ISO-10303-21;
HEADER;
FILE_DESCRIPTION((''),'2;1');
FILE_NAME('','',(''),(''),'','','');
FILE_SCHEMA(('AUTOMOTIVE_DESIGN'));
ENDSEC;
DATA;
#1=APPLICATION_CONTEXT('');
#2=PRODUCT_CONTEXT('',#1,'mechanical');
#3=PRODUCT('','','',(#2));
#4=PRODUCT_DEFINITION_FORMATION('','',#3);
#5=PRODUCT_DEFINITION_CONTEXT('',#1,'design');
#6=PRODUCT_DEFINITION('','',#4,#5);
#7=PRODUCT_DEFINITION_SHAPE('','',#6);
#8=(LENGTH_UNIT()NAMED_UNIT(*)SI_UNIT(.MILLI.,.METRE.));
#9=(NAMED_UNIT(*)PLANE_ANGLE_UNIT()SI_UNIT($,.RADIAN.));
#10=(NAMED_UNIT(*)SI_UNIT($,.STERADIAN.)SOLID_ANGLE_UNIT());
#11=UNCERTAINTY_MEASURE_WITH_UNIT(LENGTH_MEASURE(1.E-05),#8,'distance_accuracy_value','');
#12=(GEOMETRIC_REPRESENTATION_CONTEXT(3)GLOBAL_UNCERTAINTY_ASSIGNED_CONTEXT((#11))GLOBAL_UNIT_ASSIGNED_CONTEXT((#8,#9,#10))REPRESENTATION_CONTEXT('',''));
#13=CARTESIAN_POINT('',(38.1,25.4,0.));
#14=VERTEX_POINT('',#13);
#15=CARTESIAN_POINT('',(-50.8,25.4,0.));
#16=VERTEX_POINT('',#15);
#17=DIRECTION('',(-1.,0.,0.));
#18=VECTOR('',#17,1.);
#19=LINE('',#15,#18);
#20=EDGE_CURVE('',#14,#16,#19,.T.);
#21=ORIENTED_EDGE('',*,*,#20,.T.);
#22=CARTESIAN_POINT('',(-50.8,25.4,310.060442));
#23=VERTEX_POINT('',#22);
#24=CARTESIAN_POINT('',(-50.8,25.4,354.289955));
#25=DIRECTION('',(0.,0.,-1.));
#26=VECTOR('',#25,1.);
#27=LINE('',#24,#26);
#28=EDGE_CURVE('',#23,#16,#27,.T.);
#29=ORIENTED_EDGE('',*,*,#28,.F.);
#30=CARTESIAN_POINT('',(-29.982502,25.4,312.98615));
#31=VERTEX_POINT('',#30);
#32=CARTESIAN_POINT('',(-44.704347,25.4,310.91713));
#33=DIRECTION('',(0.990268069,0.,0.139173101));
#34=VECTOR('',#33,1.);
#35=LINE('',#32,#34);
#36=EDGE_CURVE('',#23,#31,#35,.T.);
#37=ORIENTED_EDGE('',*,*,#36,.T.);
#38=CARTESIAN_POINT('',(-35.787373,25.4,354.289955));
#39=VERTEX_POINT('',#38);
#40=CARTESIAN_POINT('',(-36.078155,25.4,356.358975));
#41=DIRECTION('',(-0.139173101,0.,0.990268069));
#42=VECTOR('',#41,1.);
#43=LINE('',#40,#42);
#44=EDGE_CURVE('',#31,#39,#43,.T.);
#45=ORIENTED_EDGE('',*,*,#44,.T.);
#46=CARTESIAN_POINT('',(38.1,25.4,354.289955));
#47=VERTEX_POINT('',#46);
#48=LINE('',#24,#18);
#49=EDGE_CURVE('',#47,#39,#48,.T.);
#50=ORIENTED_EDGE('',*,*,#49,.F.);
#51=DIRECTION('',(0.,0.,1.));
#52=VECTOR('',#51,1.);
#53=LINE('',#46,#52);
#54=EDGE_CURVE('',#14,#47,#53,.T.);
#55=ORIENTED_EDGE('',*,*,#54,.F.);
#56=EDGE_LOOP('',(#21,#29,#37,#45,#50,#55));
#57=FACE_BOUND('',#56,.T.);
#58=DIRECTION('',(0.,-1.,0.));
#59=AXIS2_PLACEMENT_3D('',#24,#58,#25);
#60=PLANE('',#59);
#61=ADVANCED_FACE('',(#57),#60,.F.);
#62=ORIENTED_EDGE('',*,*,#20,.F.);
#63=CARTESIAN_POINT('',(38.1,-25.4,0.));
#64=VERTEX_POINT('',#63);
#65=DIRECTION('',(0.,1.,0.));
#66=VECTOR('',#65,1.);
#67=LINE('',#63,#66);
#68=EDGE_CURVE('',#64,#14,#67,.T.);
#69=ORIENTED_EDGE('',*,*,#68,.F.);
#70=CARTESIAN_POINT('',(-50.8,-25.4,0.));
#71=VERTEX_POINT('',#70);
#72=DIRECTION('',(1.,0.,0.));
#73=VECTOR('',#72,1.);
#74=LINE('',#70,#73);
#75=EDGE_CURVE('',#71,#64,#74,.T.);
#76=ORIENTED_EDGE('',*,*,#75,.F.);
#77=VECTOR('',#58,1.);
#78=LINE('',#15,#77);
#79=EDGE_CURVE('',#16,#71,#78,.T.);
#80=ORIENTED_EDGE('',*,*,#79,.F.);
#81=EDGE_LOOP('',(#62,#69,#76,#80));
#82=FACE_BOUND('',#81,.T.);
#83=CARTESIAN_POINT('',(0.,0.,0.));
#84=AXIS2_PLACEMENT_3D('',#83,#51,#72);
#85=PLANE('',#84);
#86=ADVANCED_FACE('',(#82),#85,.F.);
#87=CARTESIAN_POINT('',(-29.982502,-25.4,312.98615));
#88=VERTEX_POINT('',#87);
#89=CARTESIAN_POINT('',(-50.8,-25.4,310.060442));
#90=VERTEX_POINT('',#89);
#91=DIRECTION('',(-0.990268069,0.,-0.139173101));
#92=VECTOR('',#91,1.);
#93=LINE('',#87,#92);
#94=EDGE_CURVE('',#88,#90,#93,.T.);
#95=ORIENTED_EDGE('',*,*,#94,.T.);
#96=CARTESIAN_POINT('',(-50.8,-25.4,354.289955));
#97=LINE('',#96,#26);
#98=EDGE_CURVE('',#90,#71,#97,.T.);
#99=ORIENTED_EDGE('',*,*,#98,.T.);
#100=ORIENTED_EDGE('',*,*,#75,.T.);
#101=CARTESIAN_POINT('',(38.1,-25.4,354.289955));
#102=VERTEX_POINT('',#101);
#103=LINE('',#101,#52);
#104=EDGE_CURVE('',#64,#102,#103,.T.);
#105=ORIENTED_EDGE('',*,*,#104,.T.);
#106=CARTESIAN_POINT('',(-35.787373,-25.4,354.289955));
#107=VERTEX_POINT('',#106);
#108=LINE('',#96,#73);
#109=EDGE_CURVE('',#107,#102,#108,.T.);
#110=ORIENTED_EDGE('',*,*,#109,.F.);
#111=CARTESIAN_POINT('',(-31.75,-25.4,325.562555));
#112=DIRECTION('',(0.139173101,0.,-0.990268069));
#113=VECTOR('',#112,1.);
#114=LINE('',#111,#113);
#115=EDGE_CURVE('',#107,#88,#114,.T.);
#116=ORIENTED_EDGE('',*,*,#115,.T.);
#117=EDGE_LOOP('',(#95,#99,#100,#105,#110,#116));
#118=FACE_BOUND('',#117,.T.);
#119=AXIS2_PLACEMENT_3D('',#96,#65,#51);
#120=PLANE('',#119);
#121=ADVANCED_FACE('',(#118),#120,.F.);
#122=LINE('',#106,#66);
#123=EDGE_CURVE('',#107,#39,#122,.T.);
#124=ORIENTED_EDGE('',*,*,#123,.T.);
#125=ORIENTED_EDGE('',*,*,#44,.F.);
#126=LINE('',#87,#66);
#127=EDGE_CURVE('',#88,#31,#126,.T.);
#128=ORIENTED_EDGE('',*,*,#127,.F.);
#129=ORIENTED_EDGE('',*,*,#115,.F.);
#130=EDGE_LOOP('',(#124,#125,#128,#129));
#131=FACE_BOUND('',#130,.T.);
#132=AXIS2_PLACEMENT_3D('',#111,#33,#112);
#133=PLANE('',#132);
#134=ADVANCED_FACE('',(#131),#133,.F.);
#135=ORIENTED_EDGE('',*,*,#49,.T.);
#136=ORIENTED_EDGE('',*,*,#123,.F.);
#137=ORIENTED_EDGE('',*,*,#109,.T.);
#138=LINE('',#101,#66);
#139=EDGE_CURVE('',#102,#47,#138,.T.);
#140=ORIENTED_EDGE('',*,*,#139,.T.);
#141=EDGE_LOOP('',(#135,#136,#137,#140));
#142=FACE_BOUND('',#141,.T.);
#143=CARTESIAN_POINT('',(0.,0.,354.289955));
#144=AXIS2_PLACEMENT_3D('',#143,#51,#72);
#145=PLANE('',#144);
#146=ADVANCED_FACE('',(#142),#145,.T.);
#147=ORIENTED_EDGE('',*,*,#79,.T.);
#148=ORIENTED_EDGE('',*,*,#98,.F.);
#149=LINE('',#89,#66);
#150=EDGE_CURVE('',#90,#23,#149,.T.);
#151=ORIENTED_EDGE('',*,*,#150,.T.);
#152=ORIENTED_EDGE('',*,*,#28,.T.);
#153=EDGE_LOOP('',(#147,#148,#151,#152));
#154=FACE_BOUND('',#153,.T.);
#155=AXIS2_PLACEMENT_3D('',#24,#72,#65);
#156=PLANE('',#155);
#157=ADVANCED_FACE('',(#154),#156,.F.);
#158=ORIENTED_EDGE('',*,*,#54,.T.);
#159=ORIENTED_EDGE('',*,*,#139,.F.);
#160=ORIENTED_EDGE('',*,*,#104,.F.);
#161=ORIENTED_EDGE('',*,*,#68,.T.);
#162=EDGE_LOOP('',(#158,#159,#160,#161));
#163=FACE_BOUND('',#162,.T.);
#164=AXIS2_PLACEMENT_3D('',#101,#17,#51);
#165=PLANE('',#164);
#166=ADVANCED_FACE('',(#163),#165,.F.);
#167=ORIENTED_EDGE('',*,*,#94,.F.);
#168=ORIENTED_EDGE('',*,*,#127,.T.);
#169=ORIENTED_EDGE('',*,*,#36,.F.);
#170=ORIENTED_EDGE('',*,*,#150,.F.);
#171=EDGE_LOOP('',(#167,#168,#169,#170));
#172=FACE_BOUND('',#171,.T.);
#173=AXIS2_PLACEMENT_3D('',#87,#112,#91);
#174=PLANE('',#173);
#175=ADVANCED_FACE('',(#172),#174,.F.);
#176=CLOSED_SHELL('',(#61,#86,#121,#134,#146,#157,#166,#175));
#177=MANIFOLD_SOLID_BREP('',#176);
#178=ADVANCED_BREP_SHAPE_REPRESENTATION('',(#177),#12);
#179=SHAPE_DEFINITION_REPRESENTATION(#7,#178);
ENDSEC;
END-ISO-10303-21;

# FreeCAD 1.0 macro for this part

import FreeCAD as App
import Part
import Sketcher
from FreeCAD import Vector
Q = App.Units.Quantity


def add_polygon(sketch, points):
    """Adds a closed chain of lines whose ends are joined by coincident constraints."""
    first, n = sketch.GeometryCount, len(points)
    for a, b in zip(points, points[1:] + points[:1]):
        sketch.addGeometry(Part.LineSegment(App.Vector(*a, 0), App.Vector(*b, 0)), False)
    for i in range(n):
        sketch.addConstraint(Sketcher.Constraint("Coincident", first + i, 2, first + (i + 1) % n, 1))

doc = App.newDocument("Part")
body = doc.addObject("PartDesign::Body", "Body")

# Sketch on XY plane
sketch1 = doc.addObject("Sketcher::SketchObject", "Sketch")
body.addObject(sketch1)
sketch1.AttachmentSupport = (doc.XY_Plane, [""])
sketch1.MapMode = "FlatFace"
add_polygon(sketch1, [(-50.8, 25.4), (-50.8, -25.4), (50.8, -25.4), (50.8, 25.4)])  # lines 0-3
sketch1.addConstraint([
    Sketcher.Constraint("Vertical", 0),
    Sketcher.Constraint("Horizontal", 1),
    Sketcher.Constraint("Vertical", 2),
    Sketcher.Constraint("Horizontal", 3),
    Sketcher.Constraint("Symmetric", 0, 2, 2, 2, -1, 1),
    Sketcher.Constraint("DistanceX", 1, 1, 1, 2, Q("4 in")),
    Sketcher.Constraint("DistanceY", 0, 2, 0, 1, Q("2 in")),
])
pad1 = doc.addObject("PartDesign::Pad", "Pad")
body.addObject(pad1)
pad1.Profile = sketch1
pad1.Length = 354.289955

# Sketch on XZ plane
sketch2 = doc.addObject("Sketcher::SketchObject", "Sketch001")
body.addObject(sketch2)
sketch2.AttachmentSupport = (doc.XZ_Plane, [""])
sketch2.MapMode = "FlatFace"
sketch2.AttachmentOffset = App.Placement(Vector(0, 0, -1 * 25.4), App.Rotation())
add_polygon(sketch2, [(-50.8, 310.060442), (-50.8, 354.289955), (-35.787373, 354.289955), (-31.75, 325.562555), (-29.982502, 312.98615)])  # lines 0-4
sketch2.addConstraint([
    Sketcher.Constraint("Vertical", 0),
    Sketcher.Constraint("Horizontal", 1),
    Sketcher.Constraint("Parallel", 2, 3),
    Sketcher.Constraint("Perpendicular", 3, 4),
    Sketcher.Constraint("DistanceX", 0, 2, -1, 1, Q("2 in")),
    Sketcher.Constraint("Angle", 2, Q("-82 deg")),
    Sketcher.Constraint("Distance", 3, Q("0.5 in")),
    Sketcher.Constraint("DistanceX", 2, 2, -1, 1, Q("1.25 in")),
    Sketcher.Constraint("DistanceY", 2, 2, 1, 2, Q("1.131 in")),
    Sketcher.Constraint("DistanceY", -1, 1, 3, 2, 312.98615),
])
pocket1 = doc.addObject("PartDesign::Pocket", "Pocket")
body.addObject(pocket1)
pocket1.Profile = sketch2
pocket1.Type = "ThroughAll"
pocket1.Midplane = True

# Sketch on XZ plane
sketch3 = doc.addObject("Sketcher::SketchObject", "Sketch002")
body.addObject(sketch3)
sketch3.AttachmentSupport = (doc.XZ_Plane, [""])
sketch3.MapMode = "FlatFace"
sketch3.AttachmentOffset = App.Placement(Vector(0, 0, -1 * 25.4), App.Rotation())
add_polygon(sketch3, [(38.1, 0), (38.1, 354.289955), (50.8, 354.289955), (50.8, 0)])  # lines 0-3
sketch3.addConstraint([
    Sketcher.Constraint("Vertical", 0),
    Sketcher.Constraint("Horizontal", 1),
    Sketcher.Constraint("Vertical", 2),
    Sketcher.Constraint("Horizontal", 3),
    Sketcher.Constraint("PointOnObject", 2, 2, -1),
    Sketcher.Constraint("DistanceX", 1, 1, 1, 2, Q("0.5 in")),
    Sketcher.Constraint("DistanceX", -1, 1, 1, 2, Q("2 in")),
    Sketcher.Constraint("DistanceY", 0, 1, 0, 2, 354.289955),
])
pocket2 = doc.addObject("PartDesign::Pocket", "Pocket001")
body.addObject(pocket2)
pocket2.Profile = sketch3
pocket2.Type = "ThroughAll"
pocket2.Midplane = True

doc.recompute()
